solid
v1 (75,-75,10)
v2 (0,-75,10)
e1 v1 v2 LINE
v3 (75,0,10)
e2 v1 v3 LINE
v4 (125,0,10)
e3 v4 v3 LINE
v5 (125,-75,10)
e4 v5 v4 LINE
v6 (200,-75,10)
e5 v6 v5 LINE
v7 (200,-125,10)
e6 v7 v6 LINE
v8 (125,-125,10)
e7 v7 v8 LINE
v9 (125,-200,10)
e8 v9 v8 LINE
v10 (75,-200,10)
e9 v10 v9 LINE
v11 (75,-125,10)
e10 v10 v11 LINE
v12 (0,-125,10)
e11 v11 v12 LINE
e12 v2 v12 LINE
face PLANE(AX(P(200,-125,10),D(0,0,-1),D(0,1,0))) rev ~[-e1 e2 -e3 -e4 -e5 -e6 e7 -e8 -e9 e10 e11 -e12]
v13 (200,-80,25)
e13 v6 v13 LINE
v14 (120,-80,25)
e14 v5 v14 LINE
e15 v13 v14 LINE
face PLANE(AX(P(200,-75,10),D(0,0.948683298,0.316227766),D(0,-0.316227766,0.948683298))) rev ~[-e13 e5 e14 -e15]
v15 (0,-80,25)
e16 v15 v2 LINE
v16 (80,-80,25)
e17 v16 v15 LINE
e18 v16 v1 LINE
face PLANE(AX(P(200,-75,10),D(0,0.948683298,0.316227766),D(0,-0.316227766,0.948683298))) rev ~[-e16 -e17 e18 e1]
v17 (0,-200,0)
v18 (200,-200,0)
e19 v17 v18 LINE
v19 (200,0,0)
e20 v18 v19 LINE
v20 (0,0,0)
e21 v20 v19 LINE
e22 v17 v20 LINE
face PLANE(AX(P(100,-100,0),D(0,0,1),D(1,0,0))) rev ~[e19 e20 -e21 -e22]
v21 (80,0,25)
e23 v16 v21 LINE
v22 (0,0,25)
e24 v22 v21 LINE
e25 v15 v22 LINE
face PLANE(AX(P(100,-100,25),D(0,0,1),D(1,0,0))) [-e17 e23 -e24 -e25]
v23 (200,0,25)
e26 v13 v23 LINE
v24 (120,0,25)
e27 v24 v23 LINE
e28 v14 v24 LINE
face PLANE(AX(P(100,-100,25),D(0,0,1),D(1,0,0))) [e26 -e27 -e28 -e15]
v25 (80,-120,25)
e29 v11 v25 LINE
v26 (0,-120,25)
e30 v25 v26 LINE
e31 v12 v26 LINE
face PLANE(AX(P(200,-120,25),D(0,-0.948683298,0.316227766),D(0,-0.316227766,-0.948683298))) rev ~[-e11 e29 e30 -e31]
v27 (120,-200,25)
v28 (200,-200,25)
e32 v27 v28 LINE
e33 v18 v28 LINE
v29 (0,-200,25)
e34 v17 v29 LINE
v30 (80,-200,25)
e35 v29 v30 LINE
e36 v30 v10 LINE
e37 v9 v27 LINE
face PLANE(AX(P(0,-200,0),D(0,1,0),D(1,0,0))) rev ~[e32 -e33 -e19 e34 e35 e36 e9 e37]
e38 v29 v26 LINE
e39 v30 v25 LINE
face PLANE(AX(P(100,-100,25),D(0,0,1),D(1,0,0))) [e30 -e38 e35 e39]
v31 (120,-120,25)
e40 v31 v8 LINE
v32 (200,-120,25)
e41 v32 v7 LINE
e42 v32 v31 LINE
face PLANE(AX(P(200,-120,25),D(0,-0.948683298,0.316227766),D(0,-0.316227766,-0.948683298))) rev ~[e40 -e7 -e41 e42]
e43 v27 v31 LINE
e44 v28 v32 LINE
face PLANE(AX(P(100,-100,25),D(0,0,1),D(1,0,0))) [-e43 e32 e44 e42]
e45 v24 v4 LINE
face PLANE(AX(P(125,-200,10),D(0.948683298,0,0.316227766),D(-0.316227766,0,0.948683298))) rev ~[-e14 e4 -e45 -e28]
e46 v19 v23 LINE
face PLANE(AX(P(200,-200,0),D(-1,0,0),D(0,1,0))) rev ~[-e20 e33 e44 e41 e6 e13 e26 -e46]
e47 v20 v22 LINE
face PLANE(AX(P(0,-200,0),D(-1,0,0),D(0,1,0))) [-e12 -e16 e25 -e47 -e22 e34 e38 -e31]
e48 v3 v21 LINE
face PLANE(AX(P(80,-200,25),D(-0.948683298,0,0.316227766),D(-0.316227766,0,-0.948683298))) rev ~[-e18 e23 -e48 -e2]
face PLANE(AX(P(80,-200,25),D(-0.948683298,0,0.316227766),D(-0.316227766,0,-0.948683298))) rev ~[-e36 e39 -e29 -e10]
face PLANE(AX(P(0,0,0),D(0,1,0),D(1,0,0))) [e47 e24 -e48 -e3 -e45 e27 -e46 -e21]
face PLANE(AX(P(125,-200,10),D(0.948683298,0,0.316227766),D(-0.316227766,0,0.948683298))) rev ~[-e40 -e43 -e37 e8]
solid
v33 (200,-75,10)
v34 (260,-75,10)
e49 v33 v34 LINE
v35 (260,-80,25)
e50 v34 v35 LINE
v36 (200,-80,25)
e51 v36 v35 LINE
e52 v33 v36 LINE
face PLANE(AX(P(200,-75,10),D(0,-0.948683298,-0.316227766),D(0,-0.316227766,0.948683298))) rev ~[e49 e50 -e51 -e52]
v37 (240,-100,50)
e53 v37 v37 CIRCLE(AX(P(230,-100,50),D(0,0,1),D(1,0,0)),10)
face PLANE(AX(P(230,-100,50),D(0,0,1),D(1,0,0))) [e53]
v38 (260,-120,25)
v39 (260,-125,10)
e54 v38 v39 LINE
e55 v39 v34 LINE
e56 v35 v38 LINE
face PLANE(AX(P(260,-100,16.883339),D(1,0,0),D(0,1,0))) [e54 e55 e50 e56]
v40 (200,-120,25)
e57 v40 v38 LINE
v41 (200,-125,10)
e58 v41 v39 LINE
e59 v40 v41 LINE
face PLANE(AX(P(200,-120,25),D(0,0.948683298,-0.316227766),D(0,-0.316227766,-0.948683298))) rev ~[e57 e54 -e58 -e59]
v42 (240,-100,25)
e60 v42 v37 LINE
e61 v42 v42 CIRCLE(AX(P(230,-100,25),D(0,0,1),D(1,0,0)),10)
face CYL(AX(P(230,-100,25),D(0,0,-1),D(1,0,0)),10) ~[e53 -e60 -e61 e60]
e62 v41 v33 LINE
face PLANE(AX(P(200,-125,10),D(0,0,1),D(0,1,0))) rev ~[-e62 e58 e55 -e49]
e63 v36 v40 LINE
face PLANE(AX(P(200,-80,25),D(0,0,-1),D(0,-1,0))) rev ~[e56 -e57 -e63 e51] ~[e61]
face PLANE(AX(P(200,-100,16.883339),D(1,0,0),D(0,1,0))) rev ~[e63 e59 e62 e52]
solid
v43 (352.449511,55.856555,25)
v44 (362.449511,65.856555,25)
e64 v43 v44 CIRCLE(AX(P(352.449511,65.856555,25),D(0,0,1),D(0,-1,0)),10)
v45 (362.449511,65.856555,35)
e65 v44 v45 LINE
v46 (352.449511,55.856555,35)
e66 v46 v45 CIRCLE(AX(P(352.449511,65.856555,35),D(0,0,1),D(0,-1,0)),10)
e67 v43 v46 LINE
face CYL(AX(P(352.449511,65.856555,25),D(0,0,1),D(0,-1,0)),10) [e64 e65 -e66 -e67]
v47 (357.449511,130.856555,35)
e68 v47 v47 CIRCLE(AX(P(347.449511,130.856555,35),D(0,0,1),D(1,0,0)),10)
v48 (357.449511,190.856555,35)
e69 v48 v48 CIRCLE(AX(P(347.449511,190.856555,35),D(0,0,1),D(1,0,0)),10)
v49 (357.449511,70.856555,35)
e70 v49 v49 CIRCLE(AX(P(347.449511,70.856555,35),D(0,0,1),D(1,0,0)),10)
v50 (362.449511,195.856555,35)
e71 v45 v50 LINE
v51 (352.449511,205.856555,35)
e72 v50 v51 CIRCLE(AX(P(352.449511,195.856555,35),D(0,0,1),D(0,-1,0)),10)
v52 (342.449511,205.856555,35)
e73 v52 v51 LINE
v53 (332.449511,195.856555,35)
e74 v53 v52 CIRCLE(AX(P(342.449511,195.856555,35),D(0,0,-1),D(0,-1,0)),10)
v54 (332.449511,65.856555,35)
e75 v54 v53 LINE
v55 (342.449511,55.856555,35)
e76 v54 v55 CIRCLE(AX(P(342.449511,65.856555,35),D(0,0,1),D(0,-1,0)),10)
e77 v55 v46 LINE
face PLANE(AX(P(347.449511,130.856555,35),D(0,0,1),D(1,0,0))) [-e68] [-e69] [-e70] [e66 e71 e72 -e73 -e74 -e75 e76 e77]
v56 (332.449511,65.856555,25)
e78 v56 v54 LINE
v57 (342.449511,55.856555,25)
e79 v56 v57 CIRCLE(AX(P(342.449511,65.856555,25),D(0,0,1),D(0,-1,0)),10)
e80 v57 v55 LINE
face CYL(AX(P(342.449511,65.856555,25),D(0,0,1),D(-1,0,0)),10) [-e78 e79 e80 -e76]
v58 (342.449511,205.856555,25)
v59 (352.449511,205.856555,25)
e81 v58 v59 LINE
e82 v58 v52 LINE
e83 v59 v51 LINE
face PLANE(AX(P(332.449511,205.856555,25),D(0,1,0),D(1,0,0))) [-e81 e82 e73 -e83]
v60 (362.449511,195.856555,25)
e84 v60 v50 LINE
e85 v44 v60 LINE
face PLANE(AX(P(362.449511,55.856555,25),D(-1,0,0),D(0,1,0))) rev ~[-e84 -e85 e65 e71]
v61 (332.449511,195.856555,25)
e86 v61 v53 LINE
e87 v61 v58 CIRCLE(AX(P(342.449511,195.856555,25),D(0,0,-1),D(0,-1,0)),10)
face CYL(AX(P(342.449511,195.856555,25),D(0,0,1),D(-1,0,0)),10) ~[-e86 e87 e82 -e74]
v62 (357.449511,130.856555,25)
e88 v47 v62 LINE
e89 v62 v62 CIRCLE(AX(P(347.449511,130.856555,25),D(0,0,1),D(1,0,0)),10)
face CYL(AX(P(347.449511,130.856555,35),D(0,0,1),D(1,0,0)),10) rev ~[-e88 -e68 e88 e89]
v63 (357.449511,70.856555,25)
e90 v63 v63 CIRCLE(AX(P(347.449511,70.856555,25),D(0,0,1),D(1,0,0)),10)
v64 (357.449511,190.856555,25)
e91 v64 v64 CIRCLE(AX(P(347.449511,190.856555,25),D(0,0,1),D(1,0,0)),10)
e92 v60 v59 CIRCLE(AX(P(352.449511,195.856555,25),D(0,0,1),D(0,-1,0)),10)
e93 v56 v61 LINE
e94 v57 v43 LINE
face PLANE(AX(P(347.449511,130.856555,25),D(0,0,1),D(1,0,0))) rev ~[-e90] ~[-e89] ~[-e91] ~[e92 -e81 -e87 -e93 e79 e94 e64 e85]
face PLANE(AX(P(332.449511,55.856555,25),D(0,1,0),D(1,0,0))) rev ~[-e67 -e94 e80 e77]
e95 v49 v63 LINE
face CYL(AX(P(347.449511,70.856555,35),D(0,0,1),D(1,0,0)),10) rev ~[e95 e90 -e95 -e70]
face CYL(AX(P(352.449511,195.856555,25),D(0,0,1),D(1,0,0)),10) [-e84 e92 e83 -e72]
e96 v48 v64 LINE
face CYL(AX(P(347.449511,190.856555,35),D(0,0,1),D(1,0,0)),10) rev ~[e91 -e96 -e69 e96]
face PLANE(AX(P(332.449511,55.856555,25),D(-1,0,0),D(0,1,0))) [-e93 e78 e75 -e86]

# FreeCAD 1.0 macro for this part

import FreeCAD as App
import Part
import Sketcher

V = App.Vector


def edges_at(feature, points):
    """Names of the edges that pass closest to the given points."""
    edges = feature.Shape.Edges
    near = lambda p: min(range(len(edges)), key=lambda i: edges[i].distToShape(Part.Vertex(*p))[0])
    return sorted({f"Edge{near(p) + 1}" for p in points})


def add_polygon(sketch, points):
    """Adds a closed chain of lines whose ends are joined by coincident constraints."""
    first, n = sketch.GeometryCount, len(points)
    for a, b in zip(points, points[1:] + points[:1]):
        sketch.addGeometry(Part.LineSegment(App.Vector(*a, 0), App.Vector(*b, 0)), False)
    for i in range(n):
        sketch.addConstraint(Sketcher.Constraint("Coincident", first + i, 2, first + (i + 1) % n, 1))

doc = App.newDocument("Part")
params = doc.addObject("Spreadsheet::Sheet", "Params")
for row, (alias, value) in enumerate([
    ("sketch1_width", "200 mm"),
    ("pad1_length", "25 mm"),
    ("sketch2_width", "40 mm"),
    ("sketch2_width2", "50 mm"),
    ("sketch3_width", "40 mm"),
    ("sketch3_width2", "50 mm"),
    ("sketch4_width", "40 mm"),
    ("sketch4_width2", "50 mm"),
    ("pad2_length", "60 mm"),
    ("sketch5_diameter", "20 mm"),
    ("pad3_length", "25 mm"),
    ("sketch6_width", "30 mm"),
    ("sketch6_height", "150 mm"),
    ("pad4_length", "10 mm"),
    ("fillet_radius", "10 mm"),
    ("sketch7_diameter", "20 mm"),
], start=1):
    params.set(f"A{row}", alias)
    params.set(f"B{row}", "=" + value)
    params.setAlias(f"B{row}", alias)

body = doc.addObject("PartDesign::Body", "Body")

# Sketch on XY plane
sketch1 = body.newObject("Sketcher::SketchObject", "Sketch")
sketch1.AttachmentSupport = (doc.getObject("XY_Plane"), [""])
sketch1.MapMode = "FlatFace"
add_polygon(sketch1, [(0, 0), (0, -200), (200, -200), (200, 0)])  # lines 0-3
sketch1.addConstraint([
    Sketcher.Constraint("Vertical", 0),
    Sketcher.Constraint("Horizontal", 1),
    Sketcher.Constraint("Vertical", 2),
    Sketcher.Constraint("Horizontal", 3),
    Sketcher.Constraint("Coincident", 3, 2, -1, 1),
    Sketcher.Constraint("Equal", 3, 0),
    Sketcher.Constraint("DistanceX", 1, 1, 1, 2, 200.0),
])
sketch1.setExpression("Constraints[10]", "Params.sketch1_width")
pad1 = body.newObject("PartDesign::Pad", "Pad")
pad1.Profile = sketch1
pad1.setExpression("Length", "Params.pad1_length")

# Sketch on XZ plane
sketch2 = body.newObject("Sketcher::SketchObject", "Sketch001")
sketch2.AttachmentSupport = (doc.getObject("XZ_Plane"), [""])
sketch2.MapMode = "FlatFace"
sketch2.AttachmentOffset = App.Placement(V(0, 0, 200), App.Rotation())
add_polygon(sketch2, [(120, 25), (80, 25), (75, 10), (125, 10)])  # lines 0-3
sketch2.addConstraint([
    Sketcher.Constraint("Horizontal", 0),
    Sketcher.Constraint("Horizontal", 2),
    Sketcher.Constraint("Equal", 1, 3),
    Sketcher.Constraint("DistanceX", 0, 2, 0, 1, 40.0),
    Sketcher.Constraint("DistanceX", 2, 1, 2, 2, 50.0),
    Sketcher.Constraint("DistanceX", -1, 1, 0, 2, 80.0),
    Sketcher.Constraint("DistanceY", -1, 1, 0, 2, 25.0),
    Sketcher.Constraint("DistanceY", -1, 1, 1, 2, 10.0),
])
sketch2.setExpression("Constraints[7]", "Params.sketch2_width")
sketch2.setExpression("Constraints[8]", "Params.sketch2_width2")
pocket1 = body.newObject("PartDesign::Pocket", "Pocket")
pocket1.Profile = sketch2
pocket1.Type = "ThroughAll"

# Sketch on YZ plane
sketch3 = body.newObject("Sketcher::SketchObject", "Sketch002")
sketch3.AttachmentSupport = (doc.getObject("YZ_Plane"), [""])
sketch3.MapMode = "FlatFace"
sketch3.AttachmentOffset = App.Placement(V(0, 0, 200), App.Rotation())
add_polygon(sketch3, [(-80, 25), (-120, 25), (-125, 10), (-75, 10)])  # lines 0-3
sketch3.addConstraint([
    Sketcher.Constraint("Horizontal", 0),
    Sketcher.Constraint("Horizontal", 2),
    Sketcher.Constraint("Equal", 1, 3),
    Sketcher.Constraint("DistanceX", 0, 2, 0, 1, 40.0),
    Sketcher.Constraint("DistanceX", 2, 1, 2, 2, 50.0),
    Sketcher.Constraint("DistanceX", 0, 2, -1, 1, 120.0),
    Sketcher.Constraint("DistanceY", -1, 1, 0, 2, 25.0),
    Sketcher.Constraint("DistanceY", -1, 1, 1, 2, 10.0),
])
sketch3.setExpression("Constraints[7]", "Params.sketch3_width")
sketch3.setExpression("Constraints[8]", "Params.sketch3_width2")
pocket2 = body.newObject("PartDesign::Pocket", "Pocket001")
pocket2.Profile = sketch3
pocket2.Type = "ThroughAll"
body2 = doc.addObject("PartDesign::Body", "Body001")

# Sketch on YZ plane
sketch4 = body2.newObject("Sketcher::SketchObject", "Sketch003")
sketch4.AttachmentSupport = (doc.getObject("YZ_Plane001"), [""])
sketch4.MapMode = "FlatFace"
sketch4.AttachmentOffset = App.Placement(V(0, 0, 200), App.Rotation())
add_polygon(sketch4, [(-80, 25), (-120, 25), (-125, 10), (-75, 10)])  # lines 0-3
sketch4.addConstraint([
    Sketcher.Constraint("Horizontal", 0),
    Sketcher.Constraint("Horizontal", 2),
    Sketcher.Constraint("Equal", 1, 3),
    Sketcher.Constraint("DistanceX", 0, 2, 0, 1, 40.0),
    Sketcher.Constraint("DistanceX", 2, 1, 2, 2, 50.0),
    Sketcher.Constraint("DistanceX", 0, 2, -1, 1, 120.0),
    Sketcher.Constraint("DistanceY", -1, 1, 0, 2, 25.0),
    Sketcher.Constraint("DistanceY", -1, 1, 1, 2, 10.0),
])
sketch4.setExpression("Constraints[7]", "Params.sketch4_width")
sketch4.setExpression("Constraints[8]", "Params.sketch4_width2")
pad2 = body2.newObject("PartDesign::Pad", "Pad001")
pad2.Profile = sketch4
pad2.setExpression("Length", "Params.pad2_length")

# Sketch on XY plane
sketch5 = body2.newObject("Sketcher::SketchObject", "Sketch004")
sketch5.AttachmentSupport = (doc.getObject("XY_Plane001"), [""])
sketch5.MapMode = "FlatFace"
sketch5.AttachmentOffset = App.Placement(V(0, 0, 25), App.Rotation())
sketch5.addGeometry(Part.Circle(V(230, -100, 0), V(0, 0, 1), 10), False)
sketch5.addConstraint([
    Sketcher.Constraint("Diameter", 0, 20.0),
    Sketcher.Constraint("DistanceX", -1, 1, 0, 3, 230.0),
    Sketcher.Constraint("DistanceY", 0, 3, -1, 1, 100.0),
])
sketch5.setExpression("Constraints[0]", "Params.sketch5_diameter")
pad3 = body2.newObject("PartDesign::Pad", "Pad002")
pad3.Profile = sketch5
pad3.setExpression("Length", "Params.pad3_length")
body3 = doc.addObject("PartDesign::Body", "Body002")

# Sketch on XY plane
sketch6 = body3.newObject("Sketcher::SketchObject", "Sketch005")
sketch6.AttachmentSupport = (doc.getObject("XY_Plane002"), [""])
sketch6.MapMode = "FlatFace"
sketch6.AttachmentOffset = App.Placement(V(0, 0, 25), App.Rotation())
add_polygon(sketch6, [(332.449511, 205.856555), (332.449511, 55.856555), (362.449511, 55.856555), (362.449511, 205.856555)])  # lines 0-3
sketch6.addConstraint([
    Sketcher.Constraint("Vertical", 0),
    Sketcher.Constraint("Horizontal", 1),
    Sketcher.Constraint("Vertical", 2),
    Sketcher.Constraint("Horizontal", 3),
    Sketcher.Constraint("DistanceX", 1, 1, 1, 2, 30.0),
    Sketcher.Constraint("DistanceY", 0, 2, 0, 1, 150.0),
    Sketcher.Constraint("DistanceX", -1, 1, 0, 2, 332.449511),
    Sketcher.Constraint("DistanceY", -1, 1, 0, 2, 55.856555),
])
sketch6.setExpression("Constraints[8]", "Params.sketch6_width")
sketch6.setExpression("Constraints[9]", "Params.sketch6_height")
pad4 = body3.newObject("PartDesign::Pad", "Pad003")
pad4.Profile = sketch6
pad4.setExpression("Length", "Params.pad4_length")
doc.recompute()

fillet = body3.newObject("PartDesign::Fillet", "Fillet")
fillet.Base = (pad4, edges_at(pad4, [
    (362.45, 55.857, 30),
    (362.45, 205.857, 30),
    (332.45, 205.857, 30),
    (332.45, 55.857, 30),
]))
fillet.setExpression("Radius", "Params.fillet_radius")

# Sketch on XY plane
sketch7 = body3.newObject("Sketcher::SketchObject", "Sketch006")
sketch7.AttachmentSupport = (doc.getObject("XY_Plane002"), [""])
sketch7.MapMode = "FlatFace"
sketch7.AttachmentOffset = App.Placement(V(0, 0, 35), App.Rotation())
sketch7.addGeometry([
    Part.Circle(V(347.449511, 70.856555, 0), V(0, 0, 1), 10),
    Part.Circle(V(347.449511, 130.856555, 0), V(0, 0, 1), 10),
    Part.Circle(V(347.449511, 190.856555, 0), V(0, 0, 1), 10),
], False)
sketch7.addConstraint([
    Sketcher.Constraint("Equal", 0, 1),
    Sketcher.Constraint("Equal", 1, 2),
    Sketcher.Constraint("Vertical", 0, 3, 1, 3),
    Sketcher.Constraint("Vertical", 1, 3, 2, 3),
    Sketcher.Constraint("Diameter", 0, 20.0),
    Sketcher.Constraint("DistanceY", 0, 3, 1, 3, 60.0),
    Sketcher.Constraint("DistanceY", 1, 3, 2, 3, 60.0),
    Sketcher.Constraint("DistanceX", -1, 1, 0, 3, 347.449511),
    Sketcher.Constraint("DistanceY", -1, 1, 0, 3, 70.856555),
])
sketch7.setExpression("Constraints[4]", "Params.sketch7_diameter")
pocket3 = body3.newObject("PartDesign::Pocket", "Pocket002")
pocket3.Profile = sketch7
pocket3.Type = "ThroughAll"

doc.recompute()
